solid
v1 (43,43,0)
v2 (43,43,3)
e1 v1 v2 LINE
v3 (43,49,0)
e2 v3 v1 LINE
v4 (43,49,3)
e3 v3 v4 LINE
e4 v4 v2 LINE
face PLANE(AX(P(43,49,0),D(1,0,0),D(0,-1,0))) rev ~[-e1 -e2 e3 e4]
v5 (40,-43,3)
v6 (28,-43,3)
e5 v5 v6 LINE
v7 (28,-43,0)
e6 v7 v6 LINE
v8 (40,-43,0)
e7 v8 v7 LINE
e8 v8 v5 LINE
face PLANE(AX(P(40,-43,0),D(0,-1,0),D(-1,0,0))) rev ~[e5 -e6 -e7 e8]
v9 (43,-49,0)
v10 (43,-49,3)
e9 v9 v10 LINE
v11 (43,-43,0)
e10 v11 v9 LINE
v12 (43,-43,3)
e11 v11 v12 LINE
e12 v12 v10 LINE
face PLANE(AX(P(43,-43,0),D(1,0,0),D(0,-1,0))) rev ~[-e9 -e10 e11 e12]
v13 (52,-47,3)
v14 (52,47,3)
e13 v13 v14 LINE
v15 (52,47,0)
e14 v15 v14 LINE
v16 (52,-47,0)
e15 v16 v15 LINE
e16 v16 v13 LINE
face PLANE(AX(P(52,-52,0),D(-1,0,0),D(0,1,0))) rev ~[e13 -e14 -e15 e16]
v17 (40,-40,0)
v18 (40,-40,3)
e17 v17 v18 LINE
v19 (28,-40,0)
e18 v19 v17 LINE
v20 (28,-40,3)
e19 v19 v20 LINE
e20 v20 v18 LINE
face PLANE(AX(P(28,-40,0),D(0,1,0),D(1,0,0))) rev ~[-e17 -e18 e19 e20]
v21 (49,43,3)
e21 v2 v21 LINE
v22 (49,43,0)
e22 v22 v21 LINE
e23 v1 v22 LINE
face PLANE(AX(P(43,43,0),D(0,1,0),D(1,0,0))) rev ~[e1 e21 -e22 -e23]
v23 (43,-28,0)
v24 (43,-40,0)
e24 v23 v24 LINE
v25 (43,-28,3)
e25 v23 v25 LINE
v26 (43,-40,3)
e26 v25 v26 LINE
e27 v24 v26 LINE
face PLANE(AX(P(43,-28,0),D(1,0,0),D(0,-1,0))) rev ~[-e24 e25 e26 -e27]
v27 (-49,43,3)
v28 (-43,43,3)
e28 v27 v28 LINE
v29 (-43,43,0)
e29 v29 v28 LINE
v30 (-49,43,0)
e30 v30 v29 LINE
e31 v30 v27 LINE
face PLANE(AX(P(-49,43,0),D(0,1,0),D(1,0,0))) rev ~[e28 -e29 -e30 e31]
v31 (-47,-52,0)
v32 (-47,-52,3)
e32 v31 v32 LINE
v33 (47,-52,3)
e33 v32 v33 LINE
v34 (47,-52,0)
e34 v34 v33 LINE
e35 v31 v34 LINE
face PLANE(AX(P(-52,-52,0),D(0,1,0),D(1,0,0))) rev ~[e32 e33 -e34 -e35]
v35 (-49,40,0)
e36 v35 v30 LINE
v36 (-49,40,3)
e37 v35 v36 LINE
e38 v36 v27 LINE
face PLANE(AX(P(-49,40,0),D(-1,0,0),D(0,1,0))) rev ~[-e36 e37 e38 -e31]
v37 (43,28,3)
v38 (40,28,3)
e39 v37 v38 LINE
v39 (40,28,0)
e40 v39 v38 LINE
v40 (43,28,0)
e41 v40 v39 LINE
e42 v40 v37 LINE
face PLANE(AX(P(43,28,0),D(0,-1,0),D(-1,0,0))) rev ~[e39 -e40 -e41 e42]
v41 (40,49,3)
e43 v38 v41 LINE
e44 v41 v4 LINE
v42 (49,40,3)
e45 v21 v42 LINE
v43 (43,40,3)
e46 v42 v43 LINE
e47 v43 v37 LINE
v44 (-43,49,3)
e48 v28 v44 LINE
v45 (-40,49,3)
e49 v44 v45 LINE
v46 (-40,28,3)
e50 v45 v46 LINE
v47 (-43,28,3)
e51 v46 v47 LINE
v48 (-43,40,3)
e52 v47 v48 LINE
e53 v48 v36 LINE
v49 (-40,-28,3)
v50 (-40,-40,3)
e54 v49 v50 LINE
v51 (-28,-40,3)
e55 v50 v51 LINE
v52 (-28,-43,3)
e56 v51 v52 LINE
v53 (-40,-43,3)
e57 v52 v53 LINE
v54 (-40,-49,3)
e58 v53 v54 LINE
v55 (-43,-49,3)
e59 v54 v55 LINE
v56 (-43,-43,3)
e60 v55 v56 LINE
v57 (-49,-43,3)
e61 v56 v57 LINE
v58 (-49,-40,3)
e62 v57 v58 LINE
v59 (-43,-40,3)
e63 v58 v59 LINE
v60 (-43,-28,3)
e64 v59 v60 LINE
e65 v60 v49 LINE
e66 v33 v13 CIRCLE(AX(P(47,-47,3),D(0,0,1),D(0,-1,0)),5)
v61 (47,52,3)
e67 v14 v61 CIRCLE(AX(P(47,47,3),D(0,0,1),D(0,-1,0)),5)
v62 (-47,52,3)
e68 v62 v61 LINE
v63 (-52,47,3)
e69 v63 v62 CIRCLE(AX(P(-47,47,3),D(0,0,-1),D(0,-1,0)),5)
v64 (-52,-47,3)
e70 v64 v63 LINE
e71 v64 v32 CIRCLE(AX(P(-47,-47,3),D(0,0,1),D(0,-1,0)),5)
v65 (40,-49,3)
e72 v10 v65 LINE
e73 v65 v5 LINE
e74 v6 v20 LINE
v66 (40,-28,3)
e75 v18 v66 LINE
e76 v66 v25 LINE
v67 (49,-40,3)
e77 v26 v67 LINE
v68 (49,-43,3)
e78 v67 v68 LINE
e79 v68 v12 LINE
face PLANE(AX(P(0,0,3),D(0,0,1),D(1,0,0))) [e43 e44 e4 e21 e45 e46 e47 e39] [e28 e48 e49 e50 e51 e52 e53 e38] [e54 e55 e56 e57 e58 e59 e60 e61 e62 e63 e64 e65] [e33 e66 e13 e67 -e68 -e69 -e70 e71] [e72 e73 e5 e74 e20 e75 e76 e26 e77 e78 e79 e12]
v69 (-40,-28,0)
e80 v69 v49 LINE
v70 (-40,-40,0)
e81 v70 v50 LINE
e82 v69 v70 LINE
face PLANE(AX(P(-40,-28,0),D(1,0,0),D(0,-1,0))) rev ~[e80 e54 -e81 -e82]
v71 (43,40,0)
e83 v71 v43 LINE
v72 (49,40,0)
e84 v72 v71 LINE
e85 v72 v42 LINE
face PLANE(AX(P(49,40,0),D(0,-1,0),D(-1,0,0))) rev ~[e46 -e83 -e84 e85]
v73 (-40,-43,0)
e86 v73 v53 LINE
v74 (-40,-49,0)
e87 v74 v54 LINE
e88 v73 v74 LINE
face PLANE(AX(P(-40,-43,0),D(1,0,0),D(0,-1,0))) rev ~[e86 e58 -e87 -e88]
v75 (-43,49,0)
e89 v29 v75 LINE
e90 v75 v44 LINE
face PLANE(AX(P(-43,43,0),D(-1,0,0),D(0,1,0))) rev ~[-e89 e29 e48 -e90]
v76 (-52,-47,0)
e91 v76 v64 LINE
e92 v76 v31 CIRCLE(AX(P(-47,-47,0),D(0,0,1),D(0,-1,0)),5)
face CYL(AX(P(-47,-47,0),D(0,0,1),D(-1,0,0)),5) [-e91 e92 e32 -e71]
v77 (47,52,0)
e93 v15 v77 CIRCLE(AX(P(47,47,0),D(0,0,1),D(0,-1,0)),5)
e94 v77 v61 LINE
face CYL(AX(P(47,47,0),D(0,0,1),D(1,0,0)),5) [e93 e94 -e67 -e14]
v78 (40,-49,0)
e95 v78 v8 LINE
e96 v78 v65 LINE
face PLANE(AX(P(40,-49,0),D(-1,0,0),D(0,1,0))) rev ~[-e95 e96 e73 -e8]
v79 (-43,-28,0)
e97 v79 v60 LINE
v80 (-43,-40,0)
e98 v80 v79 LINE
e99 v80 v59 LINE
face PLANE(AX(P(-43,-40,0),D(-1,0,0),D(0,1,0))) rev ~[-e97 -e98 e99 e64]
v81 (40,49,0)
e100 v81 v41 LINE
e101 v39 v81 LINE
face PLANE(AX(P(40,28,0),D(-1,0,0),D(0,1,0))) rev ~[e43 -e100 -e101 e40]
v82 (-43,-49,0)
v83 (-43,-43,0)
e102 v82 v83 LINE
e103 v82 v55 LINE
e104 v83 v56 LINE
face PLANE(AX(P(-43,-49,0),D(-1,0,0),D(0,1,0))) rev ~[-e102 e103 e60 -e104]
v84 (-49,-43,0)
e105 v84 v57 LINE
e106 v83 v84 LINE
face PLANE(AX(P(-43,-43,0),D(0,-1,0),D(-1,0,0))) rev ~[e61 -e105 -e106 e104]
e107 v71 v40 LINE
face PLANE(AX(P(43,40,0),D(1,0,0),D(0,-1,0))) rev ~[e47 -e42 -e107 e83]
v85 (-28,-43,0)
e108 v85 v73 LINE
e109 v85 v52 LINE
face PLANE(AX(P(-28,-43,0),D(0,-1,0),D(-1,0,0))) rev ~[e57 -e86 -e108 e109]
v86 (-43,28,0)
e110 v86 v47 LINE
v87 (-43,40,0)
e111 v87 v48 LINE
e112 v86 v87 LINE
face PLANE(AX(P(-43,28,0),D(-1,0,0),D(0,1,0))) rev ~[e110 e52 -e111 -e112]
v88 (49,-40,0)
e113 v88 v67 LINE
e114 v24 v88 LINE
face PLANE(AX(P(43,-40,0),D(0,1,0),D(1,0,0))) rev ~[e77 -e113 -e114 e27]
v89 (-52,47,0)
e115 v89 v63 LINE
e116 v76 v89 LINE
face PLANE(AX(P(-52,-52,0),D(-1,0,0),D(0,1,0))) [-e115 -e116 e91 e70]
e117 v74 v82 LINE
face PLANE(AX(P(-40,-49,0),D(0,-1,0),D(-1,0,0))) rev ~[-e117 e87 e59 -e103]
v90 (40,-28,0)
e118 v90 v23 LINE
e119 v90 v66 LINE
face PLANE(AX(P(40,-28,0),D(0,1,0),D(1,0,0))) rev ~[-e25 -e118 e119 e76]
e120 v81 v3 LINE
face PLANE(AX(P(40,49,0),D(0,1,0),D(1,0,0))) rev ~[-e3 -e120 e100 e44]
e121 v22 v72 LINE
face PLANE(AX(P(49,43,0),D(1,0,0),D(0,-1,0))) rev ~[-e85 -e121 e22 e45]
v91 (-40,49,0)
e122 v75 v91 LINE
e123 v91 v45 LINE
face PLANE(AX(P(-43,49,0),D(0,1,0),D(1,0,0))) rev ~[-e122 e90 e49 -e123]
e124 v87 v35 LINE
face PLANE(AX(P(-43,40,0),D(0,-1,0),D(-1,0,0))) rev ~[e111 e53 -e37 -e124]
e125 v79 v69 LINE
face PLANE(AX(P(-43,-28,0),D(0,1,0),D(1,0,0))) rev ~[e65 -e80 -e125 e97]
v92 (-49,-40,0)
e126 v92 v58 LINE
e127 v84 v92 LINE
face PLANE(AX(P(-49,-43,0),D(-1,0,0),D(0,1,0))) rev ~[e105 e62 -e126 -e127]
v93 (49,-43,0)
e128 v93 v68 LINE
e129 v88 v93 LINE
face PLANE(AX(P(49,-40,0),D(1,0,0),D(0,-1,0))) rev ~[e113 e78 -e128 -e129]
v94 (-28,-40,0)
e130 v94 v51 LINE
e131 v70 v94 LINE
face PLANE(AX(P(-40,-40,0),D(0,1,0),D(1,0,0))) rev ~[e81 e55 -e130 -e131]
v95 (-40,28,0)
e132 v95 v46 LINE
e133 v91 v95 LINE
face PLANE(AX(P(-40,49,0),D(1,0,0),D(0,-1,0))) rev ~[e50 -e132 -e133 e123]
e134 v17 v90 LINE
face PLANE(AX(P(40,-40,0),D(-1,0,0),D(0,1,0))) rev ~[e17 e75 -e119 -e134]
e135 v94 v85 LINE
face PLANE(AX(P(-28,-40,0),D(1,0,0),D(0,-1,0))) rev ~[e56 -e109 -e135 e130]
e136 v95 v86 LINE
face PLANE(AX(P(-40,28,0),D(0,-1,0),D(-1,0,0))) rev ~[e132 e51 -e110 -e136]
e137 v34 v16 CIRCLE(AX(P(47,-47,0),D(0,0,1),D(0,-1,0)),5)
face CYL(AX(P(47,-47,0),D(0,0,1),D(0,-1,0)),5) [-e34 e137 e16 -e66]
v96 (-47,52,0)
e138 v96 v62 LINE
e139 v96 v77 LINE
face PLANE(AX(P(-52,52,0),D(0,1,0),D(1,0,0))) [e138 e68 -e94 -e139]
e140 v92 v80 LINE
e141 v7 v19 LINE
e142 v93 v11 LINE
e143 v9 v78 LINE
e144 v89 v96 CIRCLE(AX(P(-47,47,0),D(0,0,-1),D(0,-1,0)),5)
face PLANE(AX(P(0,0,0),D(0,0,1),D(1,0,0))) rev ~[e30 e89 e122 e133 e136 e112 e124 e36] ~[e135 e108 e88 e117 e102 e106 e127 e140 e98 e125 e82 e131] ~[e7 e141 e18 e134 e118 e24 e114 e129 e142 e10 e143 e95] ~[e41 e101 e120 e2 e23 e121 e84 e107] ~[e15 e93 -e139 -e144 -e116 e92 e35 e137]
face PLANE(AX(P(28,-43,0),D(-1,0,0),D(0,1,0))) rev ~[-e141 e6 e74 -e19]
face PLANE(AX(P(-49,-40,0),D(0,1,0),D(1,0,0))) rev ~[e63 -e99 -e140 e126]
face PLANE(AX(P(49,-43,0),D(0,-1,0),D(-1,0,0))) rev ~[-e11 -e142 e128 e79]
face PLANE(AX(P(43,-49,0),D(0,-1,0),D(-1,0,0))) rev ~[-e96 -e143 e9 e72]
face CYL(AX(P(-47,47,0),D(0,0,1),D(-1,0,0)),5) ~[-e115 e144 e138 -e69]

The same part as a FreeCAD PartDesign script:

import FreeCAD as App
import Part
import Sketcher


def edges_at(feature, points):
    """Names of the edges that pass closest to the given points."""
    edges = feature.Shape.Edges
    near = lambda p: min(range(len(edges)), key=lambda i: edges[i].distToShape(Part.Vertex(*p))[0])
    return sorted({f"Edge{near(p) + 1}" for p in points})

doc = App.newDocument("Part")
body = doc.addObject("PartDesign::Body", "Body")

# Sketch on XY plane
sketch1 = body.newObject("Sketcher::SketchObject", "Sketch")
sketch1.AttachmentSupport = (doc.getObject("XY_Plane"), [""])
sketch1.MapMode = "FlatFace"
sketch1.addGeometry(Part.LineSegment(App.Vector(-52, 52, 0), App.Vector(-52, -52, 0)), False)
sketch1.addGeometry(Part.LineSegment(App.Vector(-52, -52, 0), App.Vector(52, -52, 0)), False)
sketch1.addGeometry(Part.LineSegment(App.Vector(52, -52, 0), App.Vector(52, 52, 0)), False)
sketch1.addGeometry(Part.LineSegment(App.Vector(52, 52, 0), App.Vector(-52, 52, 0)), False)
sketch1.addGeometry(Part.LineSegment(App.Vector(40, -43, 0), App.Vector(28, -43, 0)), False)
sketch1.addGeometry(Part.LineSegment(App.Vector(28, -43, 0), App.Vector(28, -40, 0)), False)
sketch1.addGeometry(Part.LineSegment(App.Vector(28, -40, 0), App.Vector(40, -40, 0)), False)
sketch1.addGeometry(Part.LineSegment(App.Vector(40, -40, 0), App.Vector(40, -28, 0)), False)
sketch1.addGeometry(Part.LineSegment(App.Vector(40, -28, 0), App.Vector(43, -28, 0)), False)
sketch1.addGeometry(Part.LineSegment(App.Vector(43, -28, 0), App.Vector(43, -40, 0)), False)
sketch1.addGeometry(Part.LineSegment(App.Vector(43, -40, 0), App.Vector(49, -40, 0)), False)
sketch1.addGeometry(Part.LineSegment(App.Vector(49, -40, 0), App.Vector(49, -43, 0)), False)
sketch1.addGeometry(Part.LineSegment(App.Vector(49, -43, 0), App.Vector(43, -43, 0)), False)
sketch1.addGeometry(Part.LineSegment(App.Vector(43, -43, 0), App.Vector(43, -49, 0)), False)
sketch1.addGeometry(Part.LineSegment(App.Vector(43, -49, 0), App.Vector(40, -49, 0)), False)
sketch1.addGeometry(Part.LineSegment(App.Vector(40, -49, 0), App.Vector(40, -43, 0)), False)
sketch1.addGeometry(Part.LineSegment(App.Vector(-28, -40, 0), App.Vector(-28, -43, 0)), False)
sketch1.addGeometry(Part.LineSegment(App.Vector(-28, -43, 0), App.Vector(-40, -43, 0)), False)
sketch1.addGeometry(Part.LineSegment(App.Vector(-40, -43, 0), App.Vector(-40, -49, 0)), False)
sketch1.addGeometry(Part.LineSegment(App.Vector(-40, -49, 0), App.Vector(-43, -49, 0)), False)
sketch1.addGeometry(Part.LineSegment(App.Vector(-43, -49, 0), App.Vector(-43, -43, 0)), False)
sketch1.addGeometry(Part.LineSegment(App.Vector(-43, -43, 0), App.Vector(-49, -43, 0)), False)
sketch1.addGeometry(Part.LineSegment(App.Vector(-49, -43, 0), App.Vector(-49, -40, 0)), False)
sketch1.addGeometry(Part.LineSegment(App.Vector(-49, -40, 0), App.Vector(-43, -40, 0)), False)
sketch1.addGeometry(Part.LineSegment(App.Vector(-43, -40, 0), App.Vector(-43, -28, 0)), False)
sketch1.addGeometry(Part.LineSegment(App.Vector(-43, -28, 0), App.Vector(-40, -28, 0)), False)
sketch1.addGeometry(Part.LineSegment(App.Vector(-40, -28, 0), App.Vector(-40, -40, 0)), False)
sketch1.addGeometry(Part.LineSegment(App.Vector(-40, -40, 0), App.Vector(-28, -40, 0)), False)
sketch1.addGeometry(Part.LineSegment(App.Vector(-40, 28, 0), App.Vector(-43, 28, 0)), False)
sketch1.addGeometry(Part.LineSegment(App.Vector(-43, 28, 0), App.Vector(-43, 40, 0)), False)
sketch1.addGeometry(Part.LineSegment(App.Vector(-43, 40, 0), App.Vector(-49, 40, 0)), False)
sketch1.addGeometry(Part.LineSegment(App.Vector(-49, 40, 0), App.Vector(-49, 43, 0)), False)
sketch1.addGeometry(Part.LineSegment(App.Vector(-49, 43, 0), App.Vector(-43, 43, 0)), False)
sketch1.addGeometry(Part.LineSegment(App.Vector(-43, 43, 0), App.Vector(-43, 49, 0)), False)
sketch1.addGeometry(Part.LineSegment(App.Vector(-43, 49, 0), App.Vector(-40, 49, 0)), False)
sketch1.addGeometry(Part.LineSegment(App.Vector(-40, 49, 0), App.Vector(-40, 28, 0)), False)
sketch1.addGeometry(Part.LineSegment(App.Vector(40, 49, 0), App.Vector(43, 49, 0)), False)
sketch1.addGeometry(Part.LineSegment(App.Vector(43, 49, 0), App.Vector(43, 43, 0)), False)
sketch1.addGeometry(Part.LineSegment(App.Vector(43, 43, 0), App.Vector(49, 43, 0)), False)
sketch1.addGeometry(Part.LineSegment(App.Vector(49, 43, 0), App.Vector(49, 40, 0)), False)
sketch1.addGeometry(Part.LineSegment(App.Vector(49, 40, 0), App.Vector(43, 40, 0)), False)
sketch1.addGeometry(Part.LineSegment(App.Vector(43, 40, 0), App.Vector(43, 28, 0)), False)
sketch1.addGeometry(Part.LineSegment(App.Vector(43, 28, 0), App.Vector(40, 28, 0)), False)
sketch1.addGeometry(Part.LineSegment(App.Vector(40, 28, 0), App.Vector(40, 49, 0)), False)
sketch1.addConstraint(Sketcher.Constraint("Coincident", 0, 2, 1, 1))
sketch1.addConstraint(Sketcher.Constraint("Coincident", 1, 2, 2, 1))
sketch1.addConstraint(Sketcher.Constraint("Coincident", 2, 2, 3, 1))
sketch1.addConstraint(Sketcher.Constraint("Coincident", 3, 2, 0, 1))
sketch1.addConstraint(Sketcher.Constraint("Coincident", 4, 2, 5, 1))
sketch1.addConstraint(Sketcher.Constraint("Coincident", 5, 2, 6, 1))
sketch1.addConstraint(Sketcher.Constraint("Coincident", 6, 2, 7, 1))
sketch1.addConstraint(Sketcher.Constraint("Coincident", 7, 2, 8, 1))
sketch1.addConstraint(Sketcher.Constraint("Coincident", 8, 2, 9, 1))
sketch1.addConstraint(Sketcher.Constraint("Coincident", 9, 2, 10, 1))
sketch1.addConstraint(Sketcher.Constraint("Coincident", 10, 2, 11, 1))
sketch1.addConstraint(Sketcher.Constraint("Coincident", 11, 2, 12, 1))
sketch1.addConstraint(Sketcher.Constraint("Coincident", 12, 2, 13, 1))
sketch1.addConstraint(Sketcher.Constraint("Coincident", 13, 2, 14, 1))
sketch1.addConstraint(Sketcher.Constraint("Coincident", 14, 2, 15, 1))
sketch1.addConstraint(Sketcher.Constraint("Coincident", 15, 2, 4, 1))
sketch1.addConstraint(Sketcher.Constraint("Coincident", 16, 2, 17, 1))
sketch1.addConstraint(Sketcher.Constraint("Coincident", 17, 2, 18, 1))
sketch1.addConstraint(Sketcher.Constraint("Coincident", 18, 2, 19, 1))
sketch1.addConstraint(Sketcher.Constraint("Coincident", 19, 2, 20, 1))
sketch1.addConstraint(Sketcher.Constraint("Coincident", 20, 2, 21, 1))
sketch1.addConstraint(Sketcher.Constraint("Coincident", 21, 2, 22, 1))
sketch1.addConstraint(Sketcher.Constraint("Coincident", 22, 2, 23, 1))
sketch1.addConstraint(Sketcher.Constraint("Coincident", 23, 2, 24, 1))
sketch1.addConstraint(Sketcher.Constraint("Coincident", 24, 2, 25, 1))
sketch1.addConstraint(Sketcher.Constraint("Coincident", 25, 2, 26, 1))
sketch1.addConstraint(Sketcher.Constraint("Coincident", 26, 2, 27, 1))
sketch1.addConstraint(Sketcher.Constraint("Coincident", 27, 2, 16, 1))
sketch1.addConstraint(Sketcher.Constraint("Coincident", 28, 2, 29, 1))
sketch1.addConstraint(Sketcher.Constraint("Coincident", 29, 2, 30, 1))
sketch1.addConstraint(Sketcher.Constraint("Coincident", 30, 2, 31, 1))
sketch1.addConstraint(Sketcher.Constraint("Coincident", 31, 2, 32, 1))
sketch1.addConstraint(Sketcher.Constraint("Coincident", 32, 2, 33, 1))
sketch1.addConstraint(Sketcher.Constraint("Coincident", 33, 2, 34, 1))
sketch1.addConstraint(Sketcher.Constraint("Coincident", 34, 2, 35, 1))
sketch1.addConstraint(Sketcher.Constraint("Coincident", 35, 2, 28, 1))
sketch1.addConstraint(Sketcher.Constraint("Coincident", 36, 2, 37, 1))
sketch1.addConstraint(Sketcher.Constraint("Coincident", 37, 2, 38, 1))
sketch1.addConstraint(Sketcher.Constraint("Coincident", 38, 2, 39, 1))
sketch1.addConstraint(Sketcher.Constraint("Coincident", 39, 2, 40, 1))
sketch1.addConstraint(Sketcher.Constraint("Coincident", 40, 2, 41, 1))
sketch1.addConstraint(Sketcher.Constraint("Coincident", 41, 2, 42, 1))
sketch1.addConstraint(Sketcher.Constraint("Coincident", 42, 2, 43, 1))
sketch1.addConstraint(Sketcher.Constraint("Coincident", 43, 2, 36, 1))
sketch1.addConstraint(Sketcher.Constraint("Vertical", 0))
sketch1.addConstraint(Sketcher.Constraint("Horizontal", 1))
sketch1.addConstraint(Sketcher.Constraint("Vertical", 2))
sketch1.addConstraint(Sketcher.Constraint("Horizontal", 3))
sketch1.addConstraint(Sketcher.Constraint("Horizontal", 4))
sketch1.addConstraint(Sketcher.Constraint("Vertical", 5))
sketch1.addConstraint(Sketcher.Constraint("Horizontal", 6))
sketch1.addConstraint(Sketcher.Constraint("Vertical", 7))
sketch1.addConstraint(Sketcher.Constraint("Horizontal", 8))
sketch1.addConstraint(Sketcher.Constraint("Vertical", 9))
sketch1.addConstraint(Sketcher.Constraint("Horizontal", 10))
sketch1.addConstraint(Sketcher.Constraint("Vertical", 11))
sketch1.addConstraint(Sketcher.Constraint("Horizontal", 12))
sketch1.addConstraint(Sketcher.Constraint("Vertical", 13))
sketch1.addConstraint(Sketcher.Constraint("Horizontal", 14))
sketch1.addConstraint(Sketcher.Constraint("Vertical", 15))
sketch1.addConstraint(Sketcher.Constraint("Vertical", 16))
sketch1.addConstraint(Sketcher.Constraint("Horizontal", 17))
sketch1.addConstraint(Sketcher.Constraint("Vertical", 18))
sketch1.addConstraint(Sketcher.Constraint("Horizontal", 19))
sketch1.addConstraint(Sketcher.Constraint("Vertical", 20))
sketch1.addConstraint(Sketcher.Constraint("Horizontal", 21))
sketch1.addConstraint(Sketcher.Constraint("Vertical", 22))
sketch1.addConstraint(Sketcher.Constraint("Horizontal", 23))
sketch1.addConstraint(Sketcher.Constraint("Vertical", 24))
sketch1.addConstraint(Sketcher.Constraint("Horizontal", 25))
sketch1.addConstraint(Sketcher.Constraint("Vertical", 26))
sketch1.addConstraint(Sketcher.Constraint("Horizontal", 27))
sketch1.addConstraint(Sketcher.Constraint("Horizontal", 28))
sketch1.addConstraint(Sketcher.Constraint("Vertical", 29))
sketch1.addConstraint(Sketcher.Constraint("Horizontal", 30))
sketch1.addConstraint(Sketcher.Constraint("Vertical", 31))
sketch1.addConstraint(Sketcher.Constraint("Horizontal", 32))
sketch1.addConstraint(Sketcher.Constraint("Vertical", 33))
sketch1.addConstraint(Sketcher.Constraint("Horizontal", 34))
sketch1.addConstraint(Sketcher.Constraint("Vertical", 35))
sketch1.addConstraint(Sketcher.Constraint("Horizontal", 36))
sketch1.addConstraint(Sketcher.Constraint("Vertical", 37))
sketch1.addConstraint(Sketcher.Constraint("Horizontal", 38))
sketch1.addConstraint(Sketcher.Constraint("Vertical", 39))
sketch1.addConstraint(Sketcher.Constraint("Horizontal", 40))
sketch1.addConstraint(Sketcher.Constraint("Vertical", 41))
sketch1.addConstraint(Sketcher.Constraint("Horizontal", 42))
sketch1.addConstraint(Sketcher.Constraint("Vertical", 43))
sketch1.addConstraint(Sketcher.Constraint("Symmetric", 0, 2, 2, 2, -1, 1))
sketch1.addConstraint(Sketcher.Constraint("Symmetric", 8, 2, 28, 2, -1, 1))
sketch1.addConstraint(Sketcher.Constraint("Symmetric", 10, 2, 30, 2, -1, 1))
sketch1.addConstraint(Sketcher.Constraint("Symmetric", 12, 2, 32, 2, -1, 1))
sketch1.addConstraint(Sketcher.Constraint("Symmetric", 14, 2, 34, 2, -1, 1))
sketch1.addConstraint(Sketcher.Constraint("Symmetric", 19, 2, 36, 2, -1, 1))
sketch1.addConstraint(Sketcher.Constraint("Symmetric", 21, 2, 38, 2, -1, 1))
sketch1.addConstraint(Sketcher.Constraint("Symmetric", 23, 2, 40, 2, -1, 1))
sketch1.addConstraint(Sketcher.Constraint("Symmetric", 25, 2, 42, 2, -1, 1))
sketch1.addConstraint(Sketcher.Constraint("Symmetric", 4, 2, 16, 2, -2))
sketch1.addConstraint(Sketcher.Constraint("Symmetric", 14, 2, 18, 2, -2))
sketch1.addConstraint(Sketcher.Constraint("Symmetric", 12, 2, 20, 2, -2))
sketch1.addConstraint(Sketcher.Constraint("Symmetric", 10, 2, 22, 2, -2))
sketch1.addConstraint(Sketcher.Constraint("Symmetric", 8, 2, 24, 2, -2))
sketch1.addConstraint(Sketcher.Constraint("Symmetric", 6, 2, 26, 2, -2))
sketch1.addConstraint(Sketcher.Constraint("Horizontal", 6, 2, 9, 2))
sketch1.addConstraint(Sketcher.Constraint("Horizontal", 4, 2, 11, 2))
sketch1.addConstraint(Sketcher.Constraint("Vertical", 9, 2, 12, 2))
sketch1.addConstraint(Sketcher.Constraint("Vertical", 7, 2, 14, 2))
sketch1.addConstraint(Sketcher.Constraint("Equal", 3, 0))
sketch1.addConstraint(Sketcher.Constraint("Equal", 42, 5))
sketch1.addConstraint(Sketcher.Constraint("Equal", 27, 7))
sketch1.addConstraint(Sketcher.Constraint("Equal", 40, 13))
sketch1.addConstraint(Sketcher.Constraint("DistanceX", 1, 1, 1, 2, 104.0))
sketch1.addConstraint(Sketcher.Constraint("DistanceX", 4, 2, 4, 1, 12.0))
sketch1.addConstraint(Sketcher.Constraint("DistanceX", 8, 1, 8, 2, 3.0))
sketch1.addConstraint(Sketcher.Constraint("DistanceX", 10, 1, 10, 2, 6.0))
sketch1.addConstraint(Sketcher.Constraint("DistanceX", -1, 1, 4, 2, 28.0))
sketch1.addConstraint(Sketcher.Constraint("DistanceY", 4, 2, -1, 1, 43.0))
pad1 = body.newObject("PartDesign::Pad", "Pad")
pad1.Profile = sketch1
pad1.Length = 3
doc.recompute()

fillet = body.newObject("PartDesign::Fillet", "Fillet")
fillet.Base = (pad1, edges_at(pad1, [
    (-52, -52, 1.5),
    (-52, 52, 1.5),
    (52, -52, 1.5),
    (52, 52, 1.5),
]))
fillet.Radius = 5

doc.recompute()
